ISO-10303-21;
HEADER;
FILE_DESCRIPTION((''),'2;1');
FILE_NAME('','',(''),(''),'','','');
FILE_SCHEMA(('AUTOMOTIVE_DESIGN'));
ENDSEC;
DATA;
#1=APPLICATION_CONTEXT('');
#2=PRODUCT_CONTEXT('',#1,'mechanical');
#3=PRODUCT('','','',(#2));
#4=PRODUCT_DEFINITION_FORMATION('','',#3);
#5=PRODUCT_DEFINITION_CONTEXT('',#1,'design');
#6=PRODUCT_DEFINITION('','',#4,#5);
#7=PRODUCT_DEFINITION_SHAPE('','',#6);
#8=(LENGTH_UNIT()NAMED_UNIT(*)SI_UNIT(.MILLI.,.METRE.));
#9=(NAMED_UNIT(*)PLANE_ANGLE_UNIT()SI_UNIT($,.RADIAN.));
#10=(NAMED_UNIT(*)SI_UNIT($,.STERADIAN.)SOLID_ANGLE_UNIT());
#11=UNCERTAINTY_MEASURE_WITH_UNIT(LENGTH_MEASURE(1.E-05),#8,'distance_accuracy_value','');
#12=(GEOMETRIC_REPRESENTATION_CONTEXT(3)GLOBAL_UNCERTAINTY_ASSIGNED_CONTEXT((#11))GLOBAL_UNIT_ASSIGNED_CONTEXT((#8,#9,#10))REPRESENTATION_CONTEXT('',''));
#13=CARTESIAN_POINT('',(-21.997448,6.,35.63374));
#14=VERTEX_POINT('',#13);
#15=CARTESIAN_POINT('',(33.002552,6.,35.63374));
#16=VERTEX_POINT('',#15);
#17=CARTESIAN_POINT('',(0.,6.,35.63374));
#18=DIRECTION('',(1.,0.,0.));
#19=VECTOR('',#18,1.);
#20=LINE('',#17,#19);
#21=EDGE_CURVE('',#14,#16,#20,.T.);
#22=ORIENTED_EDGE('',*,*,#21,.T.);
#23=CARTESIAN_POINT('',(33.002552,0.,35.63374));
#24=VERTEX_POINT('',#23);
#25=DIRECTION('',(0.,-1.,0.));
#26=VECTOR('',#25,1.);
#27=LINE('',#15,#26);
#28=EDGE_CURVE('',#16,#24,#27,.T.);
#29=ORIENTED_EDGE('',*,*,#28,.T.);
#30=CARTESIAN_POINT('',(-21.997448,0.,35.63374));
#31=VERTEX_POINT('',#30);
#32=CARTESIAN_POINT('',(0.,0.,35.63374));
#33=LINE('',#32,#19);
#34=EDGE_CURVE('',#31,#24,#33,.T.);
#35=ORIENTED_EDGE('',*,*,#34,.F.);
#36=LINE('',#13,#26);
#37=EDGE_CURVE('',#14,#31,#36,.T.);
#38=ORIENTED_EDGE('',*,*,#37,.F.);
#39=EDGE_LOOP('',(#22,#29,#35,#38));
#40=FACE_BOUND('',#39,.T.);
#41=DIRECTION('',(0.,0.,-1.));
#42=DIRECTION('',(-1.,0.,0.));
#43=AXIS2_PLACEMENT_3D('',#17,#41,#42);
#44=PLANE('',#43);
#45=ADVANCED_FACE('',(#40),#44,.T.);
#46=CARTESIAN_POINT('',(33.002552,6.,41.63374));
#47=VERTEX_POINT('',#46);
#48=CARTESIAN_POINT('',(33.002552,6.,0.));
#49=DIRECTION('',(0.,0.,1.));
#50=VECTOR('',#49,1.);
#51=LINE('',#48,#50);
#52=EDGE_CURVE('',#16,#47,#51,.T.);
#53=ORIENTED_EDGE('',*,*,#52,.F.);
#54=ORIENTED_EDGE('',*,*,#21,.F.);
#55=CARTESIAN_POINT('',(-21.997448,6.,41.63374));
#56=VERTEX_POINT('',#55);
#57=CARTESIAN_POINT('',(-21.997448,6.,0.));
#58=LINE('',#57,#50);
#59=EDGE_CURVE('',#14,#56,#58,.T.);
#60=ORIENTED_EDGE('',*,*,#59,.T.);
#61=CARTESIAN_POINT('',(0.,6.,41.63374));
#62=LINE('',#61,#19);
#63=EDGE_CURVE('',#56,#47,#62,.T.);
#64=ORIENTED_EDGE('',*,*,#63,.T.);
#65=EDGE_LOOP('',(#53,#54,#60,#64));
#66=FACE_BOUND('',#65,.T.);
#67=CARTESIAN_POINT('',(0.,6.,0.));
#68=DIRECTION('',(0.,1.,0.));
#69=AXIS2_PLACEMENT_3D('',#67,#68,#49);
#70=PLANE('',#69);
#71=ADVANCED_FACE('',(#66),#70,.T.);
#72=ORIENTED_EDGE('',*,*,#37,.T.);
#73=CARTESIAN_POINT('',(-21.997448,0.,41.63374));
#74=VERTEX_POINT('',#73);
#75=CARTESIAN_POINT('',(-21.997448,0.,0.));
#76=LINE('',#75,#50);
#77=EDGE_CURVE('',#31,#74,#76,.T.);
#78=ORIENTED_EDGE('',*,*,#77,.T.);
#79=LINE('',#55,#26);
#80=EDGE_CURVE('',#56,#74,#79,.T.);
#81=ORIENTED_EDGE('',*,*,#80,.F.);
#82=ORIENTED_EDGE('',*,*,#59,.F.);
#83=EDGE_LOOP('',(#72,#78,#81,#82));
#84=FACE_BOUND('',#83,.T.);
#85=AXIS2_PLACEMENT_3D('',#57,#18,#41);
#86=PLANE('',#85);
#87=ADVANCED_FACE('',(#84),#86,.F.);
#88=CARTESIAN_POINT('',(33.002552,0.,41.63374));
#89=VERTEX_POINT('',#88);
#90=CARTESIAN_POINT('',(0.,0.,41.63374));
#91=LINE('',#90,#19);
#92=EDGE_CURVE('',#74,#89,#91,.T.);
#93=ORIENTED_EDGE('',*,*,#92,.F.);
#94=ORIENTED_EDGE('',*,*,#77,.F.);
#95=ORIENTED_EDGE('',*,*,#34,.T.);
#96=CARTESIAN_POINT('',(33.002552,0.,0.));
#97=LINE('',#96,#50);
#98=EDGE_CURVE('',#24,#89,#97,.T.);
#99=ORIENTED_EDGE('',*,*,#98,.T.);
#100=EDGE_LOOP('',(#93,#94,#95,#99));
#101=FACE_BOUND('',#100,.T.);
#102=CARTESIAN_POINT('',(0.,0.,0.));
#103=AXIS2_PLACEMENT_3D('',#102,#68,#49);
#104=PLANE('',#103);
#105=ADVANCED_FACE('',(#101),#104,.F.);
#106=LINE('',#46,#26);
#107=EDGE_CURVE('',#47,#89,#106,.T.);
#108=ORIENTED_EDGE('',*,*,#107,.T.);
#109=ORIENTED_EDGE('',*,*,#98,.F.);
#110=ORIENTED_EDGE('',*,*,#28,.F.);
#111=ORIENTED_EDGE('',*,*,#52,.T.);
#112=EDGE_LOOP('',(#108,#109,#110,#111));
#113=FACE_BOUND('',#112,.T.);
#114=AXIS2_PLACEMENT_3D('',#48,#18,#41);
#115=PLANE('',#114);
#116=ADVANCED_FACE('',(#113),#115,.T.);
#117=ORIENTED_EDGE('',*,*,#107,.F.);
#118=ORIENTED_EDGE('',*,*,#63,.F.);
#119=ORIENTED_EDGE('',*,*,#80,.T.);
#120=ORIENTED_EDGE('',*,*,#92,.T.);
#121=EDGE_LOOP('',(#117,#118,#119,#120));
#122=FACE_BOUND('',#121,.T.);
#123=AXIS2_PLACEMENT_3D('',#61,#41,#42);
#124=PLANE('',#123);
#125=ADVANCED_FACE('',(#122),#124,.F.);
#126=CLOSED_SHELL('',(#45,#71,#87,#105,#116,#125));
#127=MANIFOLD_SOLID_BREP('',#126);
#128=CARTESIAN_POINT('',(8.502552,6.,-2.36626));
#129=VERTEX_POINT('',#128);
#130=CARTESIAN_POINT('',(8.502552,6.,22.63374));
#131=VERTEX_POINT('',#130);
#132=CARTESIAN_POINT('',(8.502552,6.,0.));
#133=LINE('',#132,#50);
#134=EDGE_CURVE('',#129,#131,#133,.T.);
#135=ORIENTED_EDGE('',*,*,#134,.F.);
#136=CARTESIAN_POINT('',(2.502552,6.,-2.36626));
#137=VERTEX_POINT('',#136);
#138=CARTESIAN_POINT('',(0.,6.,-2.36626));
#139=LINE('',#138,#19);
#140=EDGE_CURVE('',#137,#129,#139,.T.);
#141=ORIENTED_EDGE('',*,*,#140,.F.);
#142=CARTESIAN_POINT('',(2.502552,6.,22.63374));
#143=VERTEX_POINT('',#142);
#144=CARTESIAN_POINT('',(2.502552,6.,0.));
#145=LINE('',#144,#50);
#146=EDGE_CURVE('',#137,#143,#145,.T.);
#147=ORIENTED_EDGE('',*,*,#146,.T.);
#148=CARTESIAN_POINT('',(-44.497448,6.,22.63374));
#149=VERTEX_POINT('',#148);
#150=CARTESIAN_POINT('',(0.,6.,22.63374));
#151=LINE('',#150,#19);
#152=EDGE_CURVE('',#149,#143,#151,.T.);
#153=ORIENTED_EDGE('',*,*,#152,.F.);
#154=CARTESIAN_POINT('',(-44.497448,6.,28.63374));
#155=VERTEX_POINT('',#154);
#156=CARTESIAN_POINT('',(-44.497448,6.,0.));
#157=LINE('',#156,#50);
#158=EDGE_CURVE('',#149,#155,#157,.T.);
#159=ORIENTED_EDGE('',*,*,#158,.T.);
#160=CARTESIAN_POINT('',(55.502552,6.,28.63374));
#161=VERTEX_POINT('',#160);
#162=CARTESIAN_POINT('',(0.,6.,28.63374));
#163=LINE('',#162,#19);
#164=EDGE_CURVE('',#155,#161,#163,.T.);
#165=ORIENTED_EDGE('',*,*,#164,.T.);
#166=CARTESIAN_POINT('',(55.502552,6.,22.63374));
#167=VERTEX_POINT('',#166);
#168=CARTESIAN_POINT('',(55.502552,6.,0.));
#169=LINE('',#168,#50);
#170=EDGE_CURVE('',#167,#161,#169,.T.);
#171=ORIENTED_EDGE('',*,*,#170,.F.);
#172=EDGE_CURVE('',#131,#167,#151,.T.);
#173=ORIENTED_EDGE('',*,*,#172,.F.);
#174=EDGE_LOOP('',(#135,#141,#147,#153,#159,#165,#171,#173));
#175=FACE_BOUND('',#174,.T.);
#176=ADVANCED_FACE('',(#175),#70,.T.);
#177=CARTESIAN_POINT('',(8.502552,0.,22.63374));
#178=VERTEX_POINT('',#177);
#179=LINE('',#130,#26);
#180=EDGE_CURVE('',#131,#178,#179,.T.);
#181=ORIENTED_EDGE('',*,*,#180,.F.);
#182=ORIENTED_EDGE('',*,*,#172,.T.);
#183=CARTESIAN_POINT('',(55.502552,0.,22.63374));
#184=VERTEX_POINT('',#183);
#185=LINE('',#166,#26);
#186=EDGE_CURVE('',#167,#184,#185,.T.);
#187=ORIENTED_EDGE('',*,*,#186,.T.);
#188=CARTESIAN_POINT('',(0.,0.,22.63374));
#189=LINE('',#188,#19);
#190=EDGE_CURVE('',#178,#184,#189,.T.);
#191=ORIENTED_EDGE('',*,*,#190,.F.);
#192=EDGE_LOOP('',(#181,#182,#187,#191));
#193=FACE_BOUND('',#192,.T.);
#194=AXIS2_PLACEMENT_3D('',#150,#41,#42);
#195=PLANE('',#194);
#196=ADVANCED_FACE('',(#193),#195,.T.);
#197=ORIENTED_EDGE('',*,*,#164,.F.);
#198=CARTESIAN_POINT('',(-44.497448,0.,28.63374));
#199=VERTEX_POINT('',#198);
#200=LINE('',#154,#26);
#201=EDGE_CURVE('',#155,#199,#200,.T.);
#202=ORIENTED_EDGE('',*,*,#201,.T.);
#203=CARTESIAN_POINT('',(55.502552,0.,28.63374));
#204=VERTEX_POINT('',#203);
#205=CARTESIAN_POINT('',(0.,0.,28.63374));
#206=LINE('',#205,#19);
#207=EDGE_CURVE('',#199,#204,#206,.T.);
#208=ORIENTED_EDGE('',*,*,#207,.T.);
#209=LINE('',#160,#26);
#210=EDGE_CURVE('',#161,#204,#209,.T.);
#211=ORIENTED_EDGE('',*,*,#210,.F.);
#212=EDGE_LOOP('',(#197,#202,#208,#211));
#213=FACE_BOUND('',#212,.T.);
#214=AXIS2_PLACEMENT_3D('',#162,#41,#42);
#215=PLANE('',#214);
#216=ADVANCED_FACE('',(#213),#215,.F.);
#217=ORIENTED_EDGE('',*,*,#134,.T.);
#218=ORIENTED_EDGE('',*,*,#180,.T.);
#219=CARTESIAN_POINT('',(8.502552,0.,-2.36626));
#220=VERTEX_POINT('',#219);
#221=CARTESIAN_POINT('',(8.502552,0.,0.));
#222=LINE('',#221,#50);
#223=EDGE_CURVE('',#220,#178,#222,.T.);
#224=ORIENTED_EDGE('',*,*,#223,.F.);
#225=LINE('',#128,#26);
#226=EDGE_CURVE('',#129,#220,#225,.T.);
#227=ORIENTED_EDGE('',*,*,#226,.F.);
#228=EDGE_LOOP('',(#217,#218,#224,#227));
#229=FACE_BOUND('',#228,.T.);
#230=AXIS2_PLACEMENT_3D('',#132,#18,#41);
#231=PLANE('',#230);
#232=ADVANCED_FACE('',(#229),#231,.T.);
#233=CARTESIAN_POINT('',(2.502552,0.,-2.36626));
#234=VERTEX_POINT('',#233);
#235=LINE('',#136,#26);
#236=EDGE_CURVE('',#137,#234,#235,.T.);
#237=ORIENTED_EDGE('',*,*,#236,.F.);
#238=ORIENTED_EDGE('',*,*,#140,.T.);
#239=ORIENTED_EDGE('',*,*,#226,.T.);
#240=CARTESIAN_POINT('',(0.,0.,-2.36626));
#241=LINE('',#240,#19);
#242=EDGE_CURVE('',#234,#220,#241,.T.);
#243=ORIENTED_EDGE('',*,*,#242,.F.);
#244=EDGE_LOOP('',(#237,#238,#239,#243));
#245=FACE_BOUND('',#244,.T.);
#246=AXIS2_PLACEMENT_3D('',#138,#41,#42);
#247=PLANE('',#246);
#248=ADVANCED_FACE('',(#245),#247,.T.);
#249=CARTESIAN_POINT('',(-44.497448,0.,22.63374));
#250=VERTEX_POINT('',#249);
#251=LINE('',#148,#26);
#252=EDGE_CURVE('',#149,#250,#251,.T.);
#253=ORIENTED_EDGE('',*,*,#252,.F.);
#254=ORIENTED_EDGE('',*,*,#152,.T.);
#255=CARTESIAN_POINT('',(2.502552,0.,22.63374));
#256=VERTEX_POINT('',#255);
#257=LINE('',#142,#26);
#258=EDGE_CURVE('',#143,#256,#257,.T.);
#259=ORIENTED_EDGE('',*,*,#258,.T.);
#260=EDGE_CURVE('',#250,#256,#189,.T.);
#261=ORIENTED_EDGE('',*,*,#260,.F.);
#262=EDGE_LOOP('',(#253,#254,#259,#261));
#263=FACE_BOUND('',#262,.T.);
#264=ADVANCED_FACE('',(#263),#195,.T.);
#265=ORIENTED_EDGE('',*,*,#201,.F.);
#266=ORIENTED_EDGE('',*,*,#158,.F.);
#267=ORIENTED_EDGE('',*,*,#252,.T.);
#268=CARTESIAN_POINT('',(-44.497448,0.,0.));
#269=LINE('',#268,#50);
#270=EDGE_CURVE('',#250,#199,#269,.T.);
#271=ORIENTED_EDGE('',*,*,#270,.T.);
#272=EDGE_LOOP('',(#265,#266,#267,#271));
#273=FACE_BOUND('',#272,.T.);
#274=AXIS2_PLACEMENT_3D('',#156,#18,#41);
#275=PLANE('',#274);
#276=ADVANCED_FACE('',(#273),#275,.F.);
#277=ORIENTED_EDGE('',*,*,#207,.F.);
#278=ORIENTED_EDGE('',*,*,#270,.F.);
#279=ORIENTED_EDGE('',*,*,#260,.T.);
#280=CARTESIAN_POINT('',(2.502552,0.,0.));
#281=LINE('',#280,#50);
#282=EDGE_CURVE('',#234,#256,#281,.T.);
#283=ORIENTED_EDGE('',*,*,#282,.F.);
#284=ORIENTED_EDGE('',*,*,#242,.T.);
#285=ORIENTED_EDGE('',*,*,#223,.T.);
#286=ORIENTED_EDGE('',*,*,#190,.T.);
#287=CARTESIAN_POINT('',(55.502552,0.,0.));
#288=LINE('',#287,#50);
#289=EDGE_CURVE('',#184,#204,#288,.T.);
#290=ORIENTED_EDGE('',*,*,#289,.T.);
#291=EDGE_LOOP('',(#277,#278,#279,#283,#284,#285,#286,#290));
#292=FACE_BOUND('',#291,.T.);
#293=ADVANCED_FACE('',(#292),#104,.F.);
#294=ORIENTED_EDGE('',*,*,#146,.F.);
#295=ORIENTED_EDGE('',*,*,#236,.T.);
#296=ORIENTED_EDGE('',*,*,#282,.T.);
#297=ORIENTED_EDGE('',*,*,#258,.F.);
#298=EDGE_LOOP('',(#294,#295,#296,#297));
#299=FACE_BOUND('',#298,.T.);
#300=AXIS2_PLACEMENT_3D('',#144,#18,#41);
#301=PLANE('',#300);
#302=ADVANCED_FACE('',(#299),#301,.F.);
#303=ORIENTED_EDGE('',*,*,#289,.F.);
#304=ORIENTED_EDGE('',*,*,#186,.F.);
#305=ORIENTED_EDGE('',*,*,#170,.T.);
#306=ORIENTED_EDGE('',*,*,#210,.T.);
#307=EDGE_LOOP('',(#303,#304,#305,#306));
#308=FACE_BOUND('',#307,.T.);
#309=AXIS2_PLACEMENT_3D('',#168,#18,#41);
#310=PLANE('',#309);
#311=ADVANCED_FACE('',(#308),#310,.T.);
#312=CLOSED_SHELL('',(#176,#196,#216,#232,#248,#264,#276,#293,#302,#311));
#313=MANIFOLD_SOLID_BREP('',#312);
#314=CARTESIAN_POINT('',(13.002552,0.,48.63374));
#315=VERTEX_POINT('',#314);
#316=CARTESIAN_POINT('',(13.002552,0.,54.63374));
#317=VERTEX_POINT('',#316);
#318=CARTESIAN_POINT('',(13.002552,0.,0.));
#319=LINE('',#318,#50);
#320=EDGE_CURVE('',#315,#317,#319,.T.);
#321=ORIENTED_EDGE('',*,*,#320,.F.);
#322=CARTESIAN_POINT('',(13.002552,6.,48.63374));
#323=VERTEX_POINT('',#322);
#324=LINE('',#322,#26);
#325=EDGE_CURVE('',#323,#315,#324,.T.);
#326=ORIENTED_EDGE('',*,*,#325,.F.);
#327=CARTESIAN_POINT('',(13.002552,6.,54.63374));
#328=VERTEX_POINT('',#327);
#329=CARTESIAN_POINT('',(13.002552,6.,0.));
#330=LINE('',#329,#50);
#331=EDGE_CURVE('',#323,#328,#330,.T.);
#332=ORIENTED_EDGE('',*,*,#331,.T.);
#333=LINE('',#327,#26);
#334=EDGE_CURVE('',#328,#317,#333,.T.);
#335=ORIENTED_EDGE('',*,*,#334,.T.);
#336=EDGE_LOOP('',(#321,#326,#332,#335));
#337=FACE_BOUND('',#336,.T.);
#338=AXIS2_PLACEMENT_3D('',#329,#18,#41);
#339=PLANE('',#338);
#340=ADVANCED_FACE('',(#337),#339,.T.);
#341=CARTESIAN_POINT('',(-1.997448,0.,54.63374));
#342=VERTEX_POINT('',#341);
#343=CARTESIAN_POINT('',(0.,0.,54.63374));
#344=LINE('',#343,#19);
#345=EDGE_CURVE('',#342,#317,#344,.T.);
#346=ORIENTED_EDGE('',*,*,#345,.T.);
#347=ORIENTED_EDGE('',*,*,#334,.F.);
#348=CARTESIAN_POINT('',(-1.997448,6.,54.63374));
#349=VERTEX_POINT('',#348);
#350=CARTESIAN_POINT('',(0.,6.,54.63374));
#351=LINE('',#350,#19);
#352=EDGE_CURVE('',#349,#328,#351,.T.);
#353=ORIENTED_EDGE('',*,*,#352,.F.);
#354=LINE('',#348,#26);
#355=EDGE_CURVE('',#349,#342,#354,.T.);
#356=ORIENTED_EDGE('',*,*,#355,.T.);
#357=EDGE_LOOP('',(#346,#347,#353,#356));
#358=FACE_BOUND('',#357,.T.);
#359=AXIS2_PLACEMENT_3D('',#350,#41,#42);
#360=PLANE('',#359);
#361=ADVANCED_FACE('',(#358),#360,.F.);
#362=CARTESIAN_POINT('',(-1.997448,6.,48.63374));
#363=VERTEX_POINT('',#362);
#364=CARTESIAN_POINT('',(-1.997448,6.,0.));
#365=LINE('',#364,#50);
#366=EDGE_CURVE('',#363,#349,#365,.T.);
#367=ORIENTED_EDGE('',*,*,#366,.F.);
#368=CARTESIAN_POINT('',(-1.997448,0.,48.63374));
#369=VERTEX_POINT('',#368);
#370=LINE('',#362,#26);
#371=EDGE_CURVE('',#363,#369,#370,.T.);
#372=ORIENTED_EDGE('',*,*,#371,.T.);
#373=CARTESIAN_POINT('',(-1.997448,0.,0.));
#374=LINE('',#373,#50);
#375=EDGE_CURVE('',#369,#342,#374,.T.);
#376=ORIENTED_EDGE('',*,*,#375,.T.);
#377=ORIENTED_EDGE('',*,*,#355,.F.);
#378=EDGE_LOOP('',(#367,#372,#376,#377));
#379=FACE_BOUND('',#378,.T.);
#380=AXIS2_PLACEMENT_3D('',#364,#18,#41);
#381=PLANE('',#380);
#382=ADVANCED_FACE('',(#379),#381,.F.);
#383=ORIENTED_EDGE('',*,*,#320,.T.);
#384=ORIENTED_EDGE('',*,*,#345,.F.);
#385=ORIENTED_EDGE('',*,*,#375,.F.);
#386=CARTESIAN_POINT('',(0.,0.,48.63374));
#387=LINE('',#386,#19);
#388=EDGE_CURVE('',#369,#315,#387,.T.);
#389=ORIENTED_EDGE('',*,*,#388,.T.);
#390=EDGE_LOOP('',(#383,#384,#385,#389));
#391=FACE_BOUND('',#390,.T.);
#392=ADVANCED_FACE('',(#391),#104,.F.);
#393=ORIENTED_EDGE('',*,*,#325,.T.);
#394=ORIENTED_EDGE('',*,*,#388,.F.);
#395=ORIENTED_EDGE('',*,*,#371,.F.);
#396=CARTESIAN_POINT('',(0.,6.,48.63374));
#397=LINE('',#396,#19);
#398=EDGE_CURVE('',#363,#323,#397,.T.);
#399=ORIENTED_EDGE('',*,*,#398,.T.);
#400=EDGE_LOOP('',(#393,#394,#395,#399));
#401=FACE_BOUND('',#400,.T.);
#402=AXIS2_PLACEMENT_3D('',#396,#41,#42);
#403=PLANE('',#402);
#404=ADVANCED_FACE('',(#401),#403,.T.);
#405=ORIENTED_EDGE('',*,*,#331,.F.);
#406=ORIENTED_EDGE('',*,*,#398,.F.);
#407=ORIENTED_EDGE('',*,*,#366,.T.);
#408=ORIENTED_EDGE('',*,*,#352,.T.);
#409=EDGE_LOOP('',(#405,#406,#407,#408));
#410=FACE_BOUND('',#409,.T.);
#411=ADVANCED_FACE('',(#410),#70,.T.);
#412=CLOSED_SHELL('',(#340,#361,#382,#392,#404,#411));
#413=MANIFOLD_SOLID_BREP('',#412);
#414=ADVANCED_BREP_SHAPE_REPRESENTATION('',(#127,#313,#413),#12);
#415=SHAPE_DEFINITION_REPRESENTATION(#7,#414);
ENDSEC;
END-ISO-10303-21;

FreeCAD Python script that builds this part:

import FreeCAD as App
import Part
import Sketcher
from FreeCAD import Vector

doc = App.newDocument("Part")
body = doc.addObject("PartDesign::Body", "Body")
body.AllowCompound = True

# Sketch on XZ plane
sketch1 = doc.addObject("Sketcher::SketchObject", "Sketch")
body.addObject(sketch1)
sketch1.AttachmentSupport = (doc.XZ_Plane, [""])
sketch1.MapMode = "FlatFace"
sketch1.addGeometry([
    Part.LineSegment(Vector(3, -2, 0), Vector(3, 23, 0)),  # 0
    Part.LineSegment(Vector(3, 23, 0), Vector(-44, 23, 0)),  # 1
    Part.LineSegment(Vector(-44, 23, 0), Vector(-44, 29, 0)),  # 2
    Part.LineSegment(Vector(-44, 29, 0), Vector(56, 29, 0)),  # 3
    Part.LineSegment(Vector(56, 29, 0), Vector(56, 23, 0)),  # 4
    Part.LineSegment(Vector(56, 23, 0), Vector(9, 23, 0)),  # 5
    Part.LineSegment(Vector(9, 23, 0), Vector(9, -2, 0)),  # 6
    Part.LineSegment(Vector(9, -2, 0), Vector(3, -2, 0)),  # 7
    Part.LineSegment(Vector(-22, 36, 0), Vector(-22, 42, 0)),  # 8
    Part.LineSegment(Vector(-22, 42, 0), Vector(33, 42, 0)),  # 9
    Part.LineSegment(Vector(33, 42, 0), Vector(33, 36, 0)),  # 10
    Part.LineSegment(Vector(33, 36, 0), Vector(-22, 36, 0)),  # 11
    Part.LineSegment(Vector(-2, 49, 0), Vector(-2, 55, 0)),  # 12
    Part.LineSegment(Vector(-2, 55, 0), Vector(13, 55, 0)),  # 13
    Part.LineSegment(Vector(13, 55, 0), Vector(13, 49, 0)),  # 14
    Part.LineSegment(Vector(13, 49, 0), Vector(-2, 49, 0)),  # 15
], False)
sketch1.addConstraint([
    Sketcher.Constraint("Coincident", 0, 2, 1, 1),
    Sketcher.Constraint("Coincident", 1, 2, 2, 1),
    Sketcher.Constraint("Coincident", 2, 2, 3, 1),
    Sketcher.Constraint("Coincident", 3, 2, 4, 1),
    Sketcher.Constraint("Coincident", 4, 2, 5, 1),
    Sketcher.Constraint("Coincident", 5, 2, 6, 1),
    Sketcher.Constraint("Coincident", 6, 2, 7, 1),
    Sketcher.Constraint("Coincident", 7, 2, 0, 1),
    Sketcher.Constraint("Coincident", 8, 2, 9, 1),
    Sketcher.Constraint("Coincident", 9, 2, 10, 1),
    Sketcher.Constraint("Coincident", 10, 2, 11, 1),
    Sketcher.Constraint("Coincident", 11, 2, 8, 1),
    Sketcher.Constraint("Coincident", 12, 2, 13, 1),
    Sketcher.Constraint("Coincident", 13, 2, 14, 1),
    Sketcher.Constraint("Coincident", 14, 2, 15, 1),
    Sketcher.Constraint("Coincident", 15, 2, 12, 1),
    Sketcher.Constraint("Vertical", 0),
    Sketcher.Constraint("Horizontal", 1),
    Sketcher.Constraint("Vertical", 2),
    Sketcher.Constraint("Horizontal", 3),
    Sketcher.Constraint("Vertical", 4),
    Sketcher.Constraint("Horizontal", 5),
    Sketcher.Constraint("Vertical", 6),
    Sketcher.Constraint("Horizontal", 7),
    Sketcher.Constraint("Vertical", 8),
    Sketcher.Constraint("Horizontal", 9),
    Sketcher.Constraint("Vertical", 10),
    Sketcher.Constraint("Horizontal", 11),
    Sketcher.Constraint("Vertical", 12),
    Sketcher.Constraint("Horizontal", 13),
    Sketcher.Constraint("Vertical", 14),
    Sketcher.Constraint("Horizontal", 15),
    Sketcher.Constraint("Horizontal", 1, 2, 4, 2),
    Sketcher.Constraint("Equal", 1, 5),
    Sketcher.Constraint("Equal", 7, 2),
    Sketcher.Constraint("Equal", 4, 8),
    Sketcher.Constraint("Equal", 10, 12),
    Sketcher.Constraint("DistanceX", 1, 2, 1, 1, 47.0),
    Sketcher.Constraint("DistanceX", 3, 1, 3, 2, 100.0),
    Sketcher.Constraint("DistanceX", 9, 1, 9, 2, 55.0),
    Sketcher.Constraint("DistanceX", 13, 1, 13, 2, 15.0),
    Sketcher.Constraint("DistanceY", 0, 1, 0, 2, 25.0),
    Sketcher.Constraint("DistanceY", 2, 2, 8, 2, 13.0),
    Sketcher.Constraint("DistanceX", 8, 2, 12, 2, 20.0),
    Sketcher.Constraint("DistanceY", 8, 2, 12, 2, 13.0),
    Sketcher.Constraint("DistanceX", 2, 2, 8, 2, 22.5),
    Sketcher.Constraint("DistanceY", -1, 1, 0, 2, 22.63374),
    Sketcher.Constraint("DistanceX", -1, 1, 0, 2, 2.502552),
])
pad1 = doc.addObject("PartDesign::Pad", "Pad")
body.addObject(pad1)
pad1.Profile = sketch1
pad1.Length = 6
pad1.Reversed = True

doc.recompute()
